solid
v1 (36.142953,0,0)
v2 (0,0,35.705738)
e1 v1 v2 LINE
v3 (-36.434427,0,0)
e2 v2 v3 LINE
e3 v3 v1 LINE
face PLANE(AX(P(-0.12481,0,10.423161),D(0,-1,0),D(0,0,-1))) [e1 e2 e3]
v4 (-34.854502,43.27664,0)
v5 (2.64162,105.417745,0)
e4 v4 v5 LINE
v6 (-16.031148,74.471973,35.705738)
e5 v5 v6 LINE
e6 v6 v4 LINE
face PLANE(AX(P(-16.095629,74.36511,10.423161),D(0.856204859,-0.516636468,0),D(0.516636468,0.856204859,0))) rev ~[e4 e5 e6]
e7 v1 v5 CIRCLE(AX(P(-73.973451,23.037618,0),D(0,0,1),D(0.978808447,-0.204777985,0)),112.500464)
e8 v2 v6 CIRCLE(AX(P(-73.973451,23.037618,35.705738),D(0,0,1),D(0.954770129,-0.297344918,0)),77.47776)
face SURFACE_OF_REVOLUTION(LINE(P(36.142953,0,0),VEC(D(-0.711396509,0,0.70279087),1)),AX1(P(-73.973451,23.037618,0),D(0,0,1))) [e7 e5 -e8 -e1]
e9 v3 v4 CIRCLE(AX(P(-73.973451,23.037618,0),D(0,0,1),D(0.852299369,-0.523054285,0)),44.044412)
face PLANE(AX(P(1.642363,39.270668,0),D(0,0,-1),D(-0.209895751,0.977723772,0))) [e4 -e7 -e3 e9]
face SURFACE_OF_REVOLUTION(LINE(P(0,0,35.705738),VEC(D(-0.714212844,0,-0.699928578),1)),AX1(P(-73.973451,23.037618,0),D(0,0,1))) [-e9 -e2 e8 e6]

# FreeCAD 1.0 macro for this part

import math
import FreeCAD as App
import Part
import Sketcher

V = App.Vector


def add_polygon(sketch, points):
    """Adds a closed chain of lines whose ends are joined by coincident constraints."""
    first, n = sketch.GeometryCount, len(points)
    for a, b in zip(points, points[1:] + points[:1]):
        sketch.addGeometry(Part.LineSegment(App.Vector(*a, 0), App.Vector(*b, 0)), False)
    for i in range(n):
        sketch.addConstraint(Sketcher.Constraint("Coincident", first + i, 2, first + (i + 1) % n, 1))

doc = App.newDocument("Part")
body = doc.addObject("PartDesign::Body", "Body")

# Sketch on XZ plane
sketch1 = body.newObject("Sketcher::SketchObject", "Sketch")
sketch1.AttachmentSupport = (doc.getObject("XZ_Plane"), [""])
sketch1.MapMode = "FlatFace"
add_polygon(sketch1, [(36, 0), (0, 36), (-36, 0)])  # lines 0-2
sketch1.addConstraint(Sketcher.Constraint("Horizontal", 2))
sketch1.addConstraint(Sketcher.Constraint("PointOnObject", 0, 2, -2))
sketch1.addConstraint(Sketcher.Constraint("PointOnObject", 1, 2, -1))
sketch1.addConstraint(Sketcher.Constraint("DistanceX", 2, 1, 2, 2, 72.57738))
sketch1.addConstraint(Sketcher.Constraint("Distance", 0, 50.805637))
sketch1.addConstraint(Sketcher.Constraint("Distance", 1, 51.013402))

# Sketch on XY plane
sketch2 = body.newObject("Sketcher::SketchObject", "Sketch001")
sketch2.AttachmentSupport = (doc.getObject("XY_Plane"), [""])
sketch2.MapMode = "FlatFace"
sketch2.addGeometry(Part.ArcOfCircle(Part.Circle(V(-74, 23, 0), V(0, 0, 1), 77), math.radians(-17), math.radians(42)), False)
sketch2.addConstraint(Sketcher.Constraint("Coincident", 0, 1, -1, 1))
sketch2.addConstraint(Sketcher.Constraint("Radius", 0, 77.47776))
sketch2.addConstraint(Sketcher.Constraint("DistanceX", 0, 3, -1, 1, 73.973451))
sketch2.addConstraint(Sketcher.Constraint("DistanceX", 0, 2, -1, 1, 16.031148))
doc.recompute()

additivepipe = body.newObject("PartDesign::AdditivePipe", "AdditivePipe")
additivepipe.Profile = sketch1
additivepipe.Spine = (sketch2, ["Edge1"])

doc.recompute()
